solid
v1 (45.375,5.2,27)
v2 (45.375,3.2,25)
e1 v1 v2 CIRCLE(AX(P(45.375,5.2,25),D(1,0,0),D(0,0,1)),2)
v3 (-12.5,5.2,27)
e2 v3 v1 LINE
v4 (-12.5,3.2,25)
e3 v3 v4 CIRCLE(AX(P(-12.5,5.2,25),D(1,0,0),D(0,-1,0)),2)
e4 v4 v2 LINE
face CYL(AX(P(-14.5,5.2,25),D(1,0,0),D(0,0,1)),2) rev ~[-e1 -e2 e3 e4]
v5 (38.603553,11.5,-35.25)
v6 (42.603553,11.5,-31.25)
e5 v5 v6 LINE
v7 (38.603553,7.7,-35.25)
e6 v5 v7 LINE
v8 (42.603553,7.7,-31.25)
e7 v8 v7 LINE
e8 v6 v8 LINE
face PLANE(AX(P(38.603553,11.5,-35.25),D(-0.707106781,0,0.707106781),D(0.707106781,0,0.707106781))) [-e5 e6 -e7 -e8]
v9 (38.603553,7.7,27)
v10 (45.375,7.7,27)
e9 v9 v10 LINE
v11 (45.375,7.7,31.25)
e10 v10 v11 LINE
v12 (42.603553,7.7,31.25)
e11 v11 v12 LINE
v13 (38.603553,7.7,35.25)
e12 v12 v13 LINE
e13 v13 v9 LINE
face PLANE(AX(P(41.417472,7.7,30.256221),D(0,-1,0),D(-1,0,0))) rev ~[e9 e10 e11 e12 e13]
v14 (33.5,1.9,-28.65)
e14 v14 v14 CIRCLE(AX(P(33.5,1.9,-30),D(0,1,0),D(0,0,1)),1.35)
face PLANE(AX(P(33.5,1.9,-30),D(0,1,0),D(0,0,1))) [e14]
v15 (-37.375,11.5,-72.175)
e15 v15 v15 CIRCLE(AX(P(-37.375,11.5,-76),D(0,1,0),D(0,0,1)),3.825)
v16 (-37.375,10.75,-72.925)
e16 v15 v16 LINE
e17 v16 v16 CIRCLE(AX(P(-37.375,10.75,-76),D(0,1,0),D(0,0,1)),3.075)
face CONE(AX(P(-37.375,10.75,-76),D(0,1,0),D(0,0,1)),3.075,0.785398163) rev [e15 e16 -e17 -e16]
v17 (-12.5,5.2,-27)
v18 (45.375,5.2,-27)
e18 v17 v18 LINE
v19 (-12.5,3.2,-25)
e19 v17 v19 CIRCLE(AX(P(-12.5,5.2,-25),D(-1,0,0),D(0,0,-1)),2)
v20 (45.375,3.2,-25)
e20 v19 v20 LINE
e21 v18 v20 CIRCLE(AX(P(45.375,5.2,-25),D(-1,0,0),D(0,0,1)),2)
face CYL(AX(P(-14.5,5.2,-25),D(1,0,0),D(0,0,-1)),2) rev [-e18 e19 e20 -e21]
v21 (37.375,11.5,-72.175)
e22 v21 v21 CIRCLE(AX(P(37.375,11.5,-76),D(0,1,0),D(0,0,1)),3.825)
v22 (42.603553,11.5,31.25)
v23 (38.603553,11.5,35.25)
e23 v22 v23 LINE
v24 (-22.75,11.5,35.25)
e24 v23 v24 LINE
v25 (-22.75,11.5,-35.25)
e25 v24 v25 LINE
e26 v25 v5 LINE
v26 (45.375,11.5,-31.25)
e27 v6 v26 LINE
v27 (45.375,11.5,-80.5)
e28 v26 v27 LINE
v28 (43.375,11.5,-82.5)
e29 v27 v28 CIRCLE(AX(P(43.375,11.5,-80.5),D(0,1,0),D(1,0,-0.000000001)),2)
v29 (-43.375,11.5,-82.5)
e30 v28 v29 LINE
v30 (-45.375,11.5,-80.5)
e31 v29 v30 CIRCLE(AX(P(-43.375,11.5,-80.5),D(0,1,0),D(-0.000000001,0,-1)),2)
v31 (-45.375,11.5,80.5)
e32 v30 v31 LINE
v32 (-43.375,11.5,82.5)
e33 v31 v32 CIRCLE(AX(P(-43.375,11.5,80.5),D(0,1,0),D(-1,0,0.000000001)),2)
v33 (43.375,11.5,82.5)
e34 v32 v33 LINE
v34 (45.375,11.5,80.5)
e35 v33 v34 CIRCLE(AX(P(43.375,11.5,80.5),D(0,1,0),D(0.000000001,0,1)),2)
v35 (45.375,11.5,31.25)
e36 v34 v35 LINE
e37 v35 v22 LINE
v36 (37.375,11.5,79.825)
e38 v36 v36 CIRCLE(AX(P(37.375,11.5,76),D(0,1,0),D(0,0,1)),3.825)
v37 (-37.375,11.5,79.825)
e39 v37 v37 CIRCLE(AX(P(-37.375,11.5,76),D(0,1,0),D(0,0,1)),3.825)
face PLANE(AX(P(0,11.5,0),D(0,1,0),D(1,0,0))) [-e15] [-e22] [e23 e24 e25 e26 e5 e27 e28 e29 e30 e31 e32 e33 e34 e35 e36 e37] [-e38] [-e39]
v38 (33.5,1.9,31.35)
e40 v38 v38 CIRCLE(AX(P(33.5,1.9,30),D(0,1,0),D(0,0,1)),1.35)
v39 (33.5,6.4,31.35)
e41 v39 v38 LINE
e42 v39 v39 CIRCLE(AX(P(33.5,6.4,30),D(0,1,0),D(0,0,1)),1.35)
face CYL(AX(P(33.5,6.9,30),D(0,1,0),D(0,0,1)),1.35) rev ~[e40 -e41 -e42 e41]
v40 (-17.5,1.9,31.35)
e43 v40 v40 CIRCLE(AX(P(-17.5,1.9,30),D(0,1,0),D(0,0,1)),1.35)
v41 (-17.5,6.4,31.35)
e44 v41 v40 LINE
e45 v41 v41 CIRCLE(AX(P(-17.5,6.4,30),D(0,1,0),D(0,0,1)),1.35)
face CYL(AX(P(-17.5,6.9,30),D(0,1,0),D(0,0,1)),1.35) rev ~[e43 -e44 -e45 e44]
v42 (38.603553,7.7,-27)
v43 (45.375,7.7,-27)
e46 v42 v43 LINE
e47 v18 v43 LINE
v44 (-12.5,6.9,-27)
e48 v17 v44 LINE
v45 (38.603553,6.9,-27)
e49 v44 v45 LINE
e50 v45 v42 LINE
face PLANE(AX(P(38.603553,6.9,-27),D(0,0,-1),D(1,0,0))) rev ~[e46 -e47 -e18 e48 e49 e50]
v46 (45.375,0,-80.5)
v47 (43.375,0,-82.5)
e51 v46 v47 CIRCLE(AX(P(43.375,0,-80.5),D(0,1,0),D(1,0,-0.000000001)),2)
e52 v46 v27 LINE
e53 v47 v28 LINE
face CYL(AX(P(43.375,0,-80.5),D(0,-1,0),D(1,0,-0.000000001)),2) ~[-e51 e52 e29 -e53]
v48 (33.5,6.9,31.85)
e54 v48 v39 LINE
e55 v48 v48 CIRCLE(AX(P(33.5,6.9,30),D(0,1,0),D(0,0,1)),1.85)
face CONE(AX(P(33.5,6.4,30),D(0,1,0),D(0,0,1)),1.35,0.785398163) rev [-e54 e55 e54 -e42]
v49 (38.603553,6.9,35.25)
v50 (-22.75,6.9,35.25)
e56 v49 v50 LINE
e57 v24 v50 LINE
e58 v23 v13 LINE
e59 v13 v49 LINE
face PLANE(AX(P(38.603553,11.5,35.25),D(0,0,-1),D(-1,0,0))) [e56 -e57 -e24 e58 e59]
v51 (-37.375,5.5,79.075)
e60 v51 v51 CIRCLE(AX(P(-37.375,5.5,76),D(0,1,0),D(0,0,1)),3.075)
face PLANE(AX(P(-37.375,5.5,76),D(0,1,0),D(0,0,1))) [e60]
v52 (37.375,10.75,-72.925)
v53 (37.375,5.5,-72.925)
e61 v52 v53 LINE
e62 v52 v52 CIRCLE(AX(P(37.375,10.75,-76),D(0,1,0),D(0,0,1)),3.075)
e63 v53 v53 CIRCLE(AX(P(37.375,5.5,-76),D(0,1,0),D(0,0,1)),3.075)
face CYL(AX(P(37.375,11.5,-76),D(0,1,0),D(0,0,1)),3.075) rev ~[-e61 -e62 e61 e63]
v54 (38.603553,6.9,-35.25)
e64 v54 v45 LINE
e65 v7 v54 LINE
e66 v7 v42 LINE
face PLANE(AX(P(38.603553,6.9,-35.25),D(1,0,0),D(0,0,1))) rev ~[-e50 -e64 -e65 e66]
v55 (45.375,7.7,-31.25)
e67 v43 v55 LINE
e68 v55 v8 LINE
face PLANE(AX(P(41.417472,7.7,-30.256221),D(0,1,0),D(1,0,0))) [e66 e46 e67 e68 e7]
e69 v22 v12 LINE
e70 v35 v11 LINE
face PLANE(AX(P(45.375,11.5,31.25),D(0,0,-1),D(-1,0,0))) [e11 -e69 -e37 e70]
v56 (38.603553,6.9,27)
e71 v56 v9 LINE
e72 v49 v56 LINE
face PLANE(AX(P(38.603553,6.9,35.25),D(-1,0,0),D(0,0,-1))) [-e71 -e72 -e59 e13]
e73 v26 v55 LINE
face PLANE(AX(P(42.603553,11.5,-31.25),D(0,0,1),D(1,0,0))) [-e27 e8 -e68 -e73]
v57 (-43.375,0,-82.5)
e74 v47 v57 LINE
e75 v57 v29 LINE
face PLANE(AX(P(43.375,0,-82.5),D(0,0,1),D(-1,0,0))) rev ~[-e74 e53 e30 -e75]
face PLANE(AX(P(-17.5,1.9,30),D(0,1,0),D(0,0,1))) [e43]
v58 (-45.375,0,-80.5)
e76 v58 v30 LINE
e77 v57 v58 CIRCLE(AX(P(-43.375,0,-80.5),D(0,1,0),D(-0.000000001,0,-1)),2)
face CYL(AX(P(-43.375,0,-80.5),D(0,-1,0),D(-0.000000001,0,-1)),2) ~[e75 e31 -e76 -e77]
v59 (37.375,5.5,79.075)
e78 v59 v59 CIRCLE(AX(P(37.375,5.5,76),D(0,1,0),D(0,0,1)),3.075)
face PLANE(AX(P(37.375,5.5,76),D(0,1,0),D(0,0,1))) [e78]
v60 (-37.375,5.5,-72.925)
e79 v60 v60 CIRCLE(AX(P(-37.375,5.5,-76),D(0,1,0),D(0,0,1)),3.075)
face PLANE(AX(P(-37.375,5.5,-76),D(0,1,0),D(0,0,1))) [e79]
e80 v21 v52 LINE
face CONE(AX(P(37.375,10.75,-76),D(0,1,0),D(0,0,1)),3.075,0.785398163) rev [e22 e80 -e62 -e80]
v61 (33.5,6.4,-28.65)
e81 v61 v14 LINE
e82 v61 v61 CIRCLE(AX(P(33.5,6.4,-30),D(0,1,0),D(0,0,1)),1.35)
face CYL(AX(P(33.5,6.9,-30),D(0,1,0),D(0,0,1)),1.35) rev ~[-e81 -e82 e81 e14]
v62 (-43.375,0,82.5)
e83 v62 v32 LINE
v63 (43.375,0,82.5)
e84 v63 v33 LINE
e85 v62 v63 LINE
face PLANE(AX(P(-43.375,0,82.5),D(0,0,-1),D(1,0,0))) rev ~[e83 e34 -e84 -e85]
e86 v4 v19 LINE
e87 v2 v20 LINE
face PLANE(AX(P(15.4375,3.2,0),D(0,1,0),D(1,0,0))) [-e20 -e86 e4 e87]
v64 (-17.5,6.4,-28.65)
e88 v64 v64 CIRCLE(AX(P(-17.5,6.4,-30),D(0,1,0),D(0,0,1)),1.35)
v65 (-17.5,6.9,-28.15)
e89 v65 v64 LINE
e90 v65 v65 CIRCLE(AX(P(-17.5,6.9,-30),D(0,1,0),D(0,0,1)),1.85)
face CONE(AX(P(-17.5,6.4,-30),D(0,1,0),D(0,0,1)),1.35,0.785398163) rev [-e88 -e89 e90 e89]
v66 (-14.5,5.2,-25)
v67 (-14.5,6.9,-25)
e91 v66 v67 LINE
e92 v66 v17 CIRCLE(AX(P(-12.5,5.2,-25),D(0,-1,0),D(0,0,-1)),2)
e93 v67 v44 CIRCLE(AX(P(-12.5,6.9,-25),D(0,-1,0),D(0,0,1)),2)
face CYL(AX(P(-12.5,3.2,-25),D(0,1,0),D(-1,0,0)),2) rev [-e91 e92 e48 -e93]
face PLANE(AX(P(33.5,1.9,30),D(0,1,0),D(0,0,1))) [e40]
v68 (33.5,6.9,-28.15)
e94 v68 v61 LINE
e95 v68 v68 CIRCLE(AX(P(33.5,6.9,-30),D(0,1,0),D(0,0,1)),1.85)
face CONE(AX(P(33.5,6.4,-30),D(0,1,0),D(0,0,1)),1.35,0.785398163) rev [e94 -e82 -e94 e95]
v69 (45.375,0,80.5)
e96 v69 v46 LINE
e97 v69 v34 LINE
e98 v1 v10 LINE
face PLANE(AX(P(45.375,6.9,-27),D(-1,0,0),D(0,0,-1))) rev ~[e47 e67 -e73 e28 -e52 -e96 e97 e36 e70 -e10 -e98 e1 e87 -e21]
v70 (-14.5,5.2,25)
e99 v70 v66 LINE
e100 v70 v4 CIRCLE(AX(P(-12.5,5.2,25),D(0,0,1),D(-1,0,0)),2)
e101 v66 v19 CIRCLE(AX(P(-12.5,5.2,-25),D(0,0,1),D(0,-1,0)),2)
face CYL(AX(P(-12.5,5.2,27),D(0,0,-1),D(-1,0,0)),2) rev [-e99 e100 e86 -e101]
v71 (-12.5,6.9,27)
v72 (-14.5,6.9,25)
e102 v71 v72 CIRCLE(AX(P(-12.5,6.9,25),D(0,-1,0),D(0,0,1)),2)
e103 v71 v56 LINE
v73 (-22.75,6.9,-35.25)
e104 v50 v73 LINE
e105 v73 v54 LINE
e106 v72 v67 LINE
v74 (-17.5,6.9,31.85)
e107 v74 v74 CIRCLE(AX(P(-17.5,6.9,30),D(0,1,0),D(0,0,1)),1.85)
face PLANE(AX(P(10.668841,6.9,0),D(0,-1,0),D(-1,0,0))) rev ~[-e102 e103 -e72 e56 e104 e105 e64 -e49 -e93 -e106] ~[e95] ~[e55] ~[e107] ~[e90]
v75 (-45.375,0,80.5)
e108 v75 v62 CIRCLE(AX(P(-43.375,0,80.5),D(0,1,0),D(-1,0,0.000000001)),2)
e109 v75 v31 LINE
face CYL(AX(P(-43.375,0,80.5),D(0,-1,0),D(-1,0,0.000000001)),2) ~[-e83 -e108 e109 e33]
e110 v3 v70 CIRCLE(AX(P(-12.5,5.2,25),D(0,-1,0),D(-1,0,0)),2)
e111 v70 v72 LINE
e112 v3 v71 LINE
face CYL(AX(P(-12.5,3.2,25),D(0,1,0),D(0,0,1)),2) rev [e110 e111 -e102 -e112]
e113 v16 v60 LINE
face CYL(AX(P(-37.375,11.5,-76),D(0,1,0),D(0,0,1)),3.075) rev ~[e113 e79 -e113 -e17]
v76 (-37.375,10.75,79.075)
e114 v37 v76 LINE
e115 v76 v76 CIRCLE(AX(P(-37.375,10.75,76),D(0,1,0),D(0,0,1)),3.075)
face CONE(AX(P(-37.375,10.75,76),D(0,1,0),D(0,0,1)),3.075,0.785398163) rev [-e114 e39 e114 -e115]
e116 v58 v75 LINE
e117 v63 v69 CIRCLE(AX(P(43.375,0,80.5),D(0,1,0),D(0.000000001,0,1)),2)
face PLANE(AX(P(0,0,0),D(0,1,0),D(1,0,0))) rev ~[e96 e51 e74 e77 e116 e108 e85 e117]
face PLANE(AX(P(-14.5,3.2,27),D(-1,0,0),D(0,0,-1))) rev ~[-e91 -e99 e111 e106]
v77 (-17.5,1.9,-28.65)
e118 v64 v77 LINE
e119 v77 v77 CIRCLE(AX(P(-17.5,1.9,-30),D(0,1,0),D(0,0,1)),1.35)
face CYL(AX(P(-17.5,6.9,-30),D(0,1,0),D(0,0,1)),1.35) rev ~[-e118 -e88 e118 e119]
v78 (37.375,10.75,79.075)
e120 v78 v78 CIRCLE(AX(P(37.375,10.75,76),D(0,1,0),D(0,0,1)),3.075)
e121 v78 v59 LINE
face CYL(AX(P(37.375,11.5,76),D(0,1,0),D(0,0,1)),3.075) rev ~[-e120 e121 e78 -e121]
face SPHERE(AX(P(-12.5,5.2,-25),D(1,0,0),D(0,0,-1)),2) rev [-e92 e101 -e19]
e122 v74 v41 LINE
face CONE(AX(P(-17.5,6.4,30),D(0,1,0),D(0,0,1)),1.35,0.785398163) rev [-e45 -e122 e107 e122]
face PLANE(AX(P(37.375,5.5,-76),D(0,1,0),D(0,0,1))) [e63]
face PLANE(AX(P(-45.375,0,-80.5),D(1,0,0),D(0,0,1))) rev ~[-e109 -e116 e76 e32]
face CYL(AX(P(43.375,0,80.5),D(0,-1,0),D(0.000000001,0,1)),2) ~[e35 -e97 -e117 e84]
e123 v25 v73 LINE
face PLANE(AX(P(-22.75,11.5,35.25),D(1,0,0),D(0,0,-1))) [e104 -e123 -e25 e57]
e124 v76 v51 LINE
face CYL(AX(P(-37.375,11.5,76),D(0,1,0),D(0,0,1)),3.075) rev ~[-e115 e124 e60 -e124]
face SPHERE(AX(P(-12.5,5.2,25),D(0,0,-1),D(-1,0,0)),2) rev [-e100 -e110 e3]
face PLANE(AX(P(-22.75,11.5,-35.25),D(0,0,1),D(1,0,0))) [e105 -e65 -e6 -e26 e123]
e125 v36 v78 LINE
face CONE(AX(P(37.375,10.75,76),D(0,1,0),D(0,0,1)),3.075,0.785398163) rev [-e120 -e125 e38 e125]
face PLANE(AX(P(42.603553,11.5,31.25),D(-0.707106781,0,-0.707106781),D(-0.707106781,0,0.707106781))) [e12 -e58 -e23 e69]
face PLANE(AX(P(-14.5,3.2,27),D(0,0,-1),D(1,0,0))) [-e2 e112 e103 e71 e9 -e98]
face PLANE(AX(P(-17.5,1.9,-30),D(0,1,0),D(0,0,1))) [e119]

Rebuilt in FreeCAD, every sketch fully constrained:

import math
import FreeCAD as App
import Part
import Sketcher
from FreeCAD import Vector


def edges_at(feature, points):
    """Names of the edges that pass closest to the given points."""
    edges = feature.Shape.Edges
    near = lambda p: min(range(len(edges)), key=lambda i: edges[i].distToShape(Part.Vertex(*p))[0])
    return sorted({f"Edge{near(p) + 1}" for p in points})


def add_polygon(sketch, points):
    """Adds a closed chain of lines whose ends are joined by coincident constraints."""
    first, n = sketch.GeometryCount, len(points)
    for a, b in zip(points, points[1:] + points[:1]):
        sketch.addGeometry(Part.LineSegment(App.Vector(*a, 0), App.Vector(*b, 0)), False)
    for i in range(n):
        sketch.addConstraint(Sketcher.Constraint("Coincident", first + i, 2, first + (i + 1) % n, 1))

doc = App.newDocument("Part")
params = doc.addObject("Spreadsheet::Sheet", "Params")
for row, (alias, value) in enumerate([
    ("sketch1_radius", "2 mm"),
    ("sketch1_height", "161 mm"),
    ("sketch1_width", "86.75 mm"),
    ("pad1_length", "11.5 mm"),
    ("sketch2_diameter", "6.15 mm"),
    ("pocket1_length", "6 mm"),
    ("sketch3_height", "62.5 mm"),
    ("sketch3_height2", "70.5 mm"),
    ("pocket2_length", "4.6 mm"),
    ("sketch4_height", "54 mm"),
    ("pocket3_length", "95.407365 mm"),
    ("pocket3_length2", "3.7 mm"),
    ("sketch5_diameter", "2.7 mm"),
    ("pocket4_length", "5 mm"),
    ("chamfer_size", "0.5 mm"),
    ("fillet_radius", "2 mm"),
    ("sketch6_height", "8.25 mm"),
    ("pad2_length", "0.8 mm"),
    ("chamfer2_size", "0.75 mm"),
], start=1):
    params.set(f"A{row}", alias)
    params.set(f"B{row}", "=" + value)
    params.setAlias(f"B{row}", alias)

body = doc.addObject("PartDesign::Body", "Body")

# Sketch on XZ plane
sketch1 = body.newObject("Sketcher::SketchObject", "Sketch")
sketch1.AttachmentSupport = (doc.getObject("XZ_Plane"), [""])
sketch1.MapMode = "FlatFace"
sketch1.addGeometry([
    Part.ArcOfCircle(Part.Circle(Vector(-43.4, 80.5, 0), Vector(0, 0, 1), 2), math.radians(90), math.radians(180)),  # 0
    Part.LineSegment(Vector(-43.4, 82.5, 0), Vector(43.4, 82.5, 0)),  # 1
    Part.ArcOfCircle(Part.Circle(Vector(43.4, 80.5, 0), Vector(0, 0, 1), 2), math.radians(0), math.radians(90)),  # 2
    Part.LineSegment(Vector(45.4, 80.5, 0), Vector(45.4, -80.5, 0)),  # 3
    Part.ArcOfCircle(Part.Circle(Vector(43.4, -80.5, 0), Vector(0, 0, 1), 2), math.radians(-90), math.radians(0)),  # 4
    Part.LineSegment(Vector(43.4, -82.5, 0), Vector(-43.4, -82.5, 0)),  # 5
    Part.ArcOfCircle(Part.Circle(Vector(-43.4, -80.5, 0), Vector(0, 0, 1), 2), math.radians(-180), math.radians(-90)),  # 6
    Part.LineSegment(Vector(-45.4, -80.5, 0), Vector(-45.4, 80.5, 0)),  # 7
], False)
sketch1.addConstraint([
    Sketcher.Constraint("Tangent", 0, 1, 1, 1),
    Sketcher.Constraint("Tangent", 1, 2, 2, 2),
    Sketcher.Constraint("Tangent", 2, 1, 3, 1),
    Sketcher.Constraint("Tangent", 3, 2, 4, 2),
    Sketcher.Constraint("Tangent", 4, 1, 5, 1),
    Sketcher.Constraint("Tangent", 5, 2, 6, 2),
    Sketcher.Constraint("Tangent", 6, 1, 7, 1),
    Sketcher.Constraint("Tangent", 7, 2, 0, 2),
    Sketcher.Constraint("Horizontal", 1),
    Sketcher.Constraint("Vertical", 3),
    Sketcher.Constraint("Horizontal", 5),
    Sketcher.Constraint("Vertical", 7),
    Sketcher.Constraint("Equal", 0, 2),
    Sketcher.Constraint("Equal", 2, 4),
    Sketcher.Constraint("Equal", 4, 6),
    Sketcher.Constraint("Symmetric", 0, 3, 4, 3, -1, 1),
    Sketcher.Constraint("Radius", 0, 2.0),
    Sketcher.Constraint("DistanceY", 3, 2, 3, 1, 161.0),
    Sketcher.Constraint("DistanceX", 1, 1, 1, 2, 86.75),
])
sketch1.setExpression("Constraints[16]", "Params.sketch1_radius")
sketch1.setExpression("Constraints[17]", "Params.sketch1_height")
sketch1.setExpression("Constraints[18]", "Params.sketch1_width")
pad1 = body.newObject("PartDesign::Pad", "Pad")
pad1.Profile = sketch1
pad1.setExpression("Length", "Params.pad1_length")
pad1.Reversed = True

# Sketch on XZ plane
sketch2 = body.newObject("Sketcher::SketchObject", "Sketch001")
sketch2.AttachmentSupport = (doc.getObject("XZ_Plane"), [""])
sketch2.MapMode = "FlatFace"
sketch2.AttachmentOffset = App.Placement(Vector(0, 0, -11.5), App.Rotation())
sketch2.addGeometry([
    Part.Circle(Vector(-37.4, 76, 0), Vector(0, 0, 1), 3.1),
    Part.Circle(Vector(37.4, 76, 0), Vector(0, 0, 1), 3.1),
    Part.Circle(Vector(37.4, -76, 0), Vector(0, 0, 1), 3.1),
    Part.Circle(Vector(-37.4, -76, 0), Vector(0, 0, 1), 3.1),
], False)
sketch2.addConstraint([
    Sketcher.Constraint("Equal", 0, 1),
    Sketcher.Constraint("Equal", 1, 2),
    Sketcher.Constraint("Equal", 2, 3),
    Sketcher.Constraint("Symmetric", 0, 3, 2, 3, -1, 1),
    Sketcher.Constraint("Symmetric", 1, 3, 3, 3, -1, 1),
    Sketcher.Constraint("Symmetric", 0, 3, 1, 3, -2),
    Sketcher.Constraint("Diameter", 0, 6.15),
    Sketcher.Constraint("DistanceY", -1, 1, 0, 3, 76.0),
    Sketcher.Constraint("DistanceX", 0, 3, 1, 3, 74.75),
])
sketch2.setExpression("Constraints[6]", "Params.sketch2_diameter")
pocket1 = body.newObject("PartDesign::Pocket", "Pocket")
pocket1.Profile = sketch2
pocket1.setExpression("Length", "Params.pocket1_length")
pocket1.Reversed = True

# Sketch on XZ plane
sketch3 = body.newObject("Sketcher::SketchObject", "Sketch002")
sketch3.AttachmentSupport = (doc.getObject("XZ_Plane"), [""])
sketch3.MapMode = "FlatFace"
sketch3.AttachmentOffset = App.Placement(Vector(0, 0, -11.5), App.Rotation())
add_polygon(sketch3, [(45.4, 31.2), (45.4, -31.2), (42.6, -31.2), (38.6, -35.2), (-22.8, -35.2), (-22.8, 35.2), (38.6, 35.2), (42.6, 31.2)])  # lines 0-7
sketch3.addConstraint([
    Sketcher.Constraint("Vertical", 0),
    Sketcher.Constraint("Horizontal", 1),
    Sketcher.Constraint("Horizontal", 3),
    Sketcher.Constraint("Vertical", 4),
    Sketcher.Constraint("Horizontal", 5),
    Sketcher.Constraint("Horizontal", 7),
    Sketcher.Constraint("Symmetric", 2, 2, 5, 2, -1),
    Sketcher.Constraint("Symmetric", 1, 2, 6, 2, -1),
    Sketcher.Constraint("Perpendicular", 2, 6),
    Sketcher.Constraint("DistanceY", 0, 2, 0, 1, 62.5),
    Sketcher.Constraint("DistanceY", 4, 1, 4, 2, 70.5),
    Sketcher.Constraint("DistanceX", 3, 2, -1, 1, 22.75),
    Sketcher.Constraint("DistanceX", -1, 1, 0, 2, 45.375),
    Sketcher.Constraint("DistanceX", 1, 2, 1, 1, 2.771447),
])
sketch3.setExpression("Constraints[17]", "Params.sketch3_height")
sketch3.setExpression("Constraints[18]", "Params.sketch3_height2")
pocket2 = body.newObject("PartDesign::Pocket", "Pocket001")
pocket2.Profile = sketch3
pocket2.setExpression("Length", "Params.pocket2_length")
pocket2.Reversed = True

# Sketch on XZ plane
sketch4 = body.newObject("Sketcher::SketchObject", "Sketch003")
sketch4.AttachmentSupport = (doc.getObject("XZ_Plane"), [""])
sketch4.MapMode = "FlatFace"
sketch4.AttachmentOffset = App.Placement(Vector(0, 0, -6.9), App.Rotation())
add_polygon(sketch4, [(-14, -27), (-14, 27), (45, 27), (45, -27)])  # lines 0-3
sketch4.addConstraint([
    Sketcher.Constraint("Vertical", 0),
    Sketcher.Constraint("Horizontal", 1),
    Sketcher.Constraint("Vertical", 2),
    Sketcher.Constraint("Horizontal", 3),
    Sketcher.Constraint("DistanceY", 0, 1, 0, 2, 54.0),
    Sketcher.Constraint("DistanceY", -1, 1, 0, 2, 27.0),
    Sketcher.Constraint("DistanceX", 0, 2, -1, 1, 14.5),
    Sketcher.Constraint("DistanceX", 1, 1, 1, 2, 59.875),
])
sketch4.setExpression("Constraints[8]", "Params.sketch4_height")
pocket3 = body.newObject("PartDesign::Pocket", "Pocket002")
pocket3.Profile = sketch4
pocket3.Type = "TwoLengths"
pocket3.setExpression("Length", "Params.pocket3_length")
pocket3.setExpression("Length2", "Params.pocket3_length2")

# Sketch on XZ plane
sketch5 = body.newObject("Sketcher::SketchObject", "Sketch004")
sketch5.AttachmentSupport = (doc.getObject("XZ_Plane"), [""])
sketch5.MapMode = "FlatFace"
sketch5.AttachmentOffset = App.Placement(Vector(0, 0, -6.9), App.Rotation())
sketch5.addGeometry([
    Part.Circle(Vector(33.5, -30, 0), Vector(0, 0, 1), 1.4),
    Part.Circle(Vector(-17.5, -30, 0), Vector(0, 0, 1), 1.4),
    Part.Circle(Vector(33.5, 30, 0), Vector(0, 0, 1), 1.4),
    Part.Circle(Vector(-17.5, 30, 0), Vector(0, 0, 1), 1.4),
], False)
sketch5.addConstraint([
    Sketcher.Constraint("Equal", 0, 1),
    Sketcher.Constraint("Equal", 1, 2),
    Sketcher.Constraint("Equal", 2, 3),
    Sketcher.Constraint("Symmetric", 0, 3, 2, 3, -1),
    Sketcher.Constraint("Symmetric", 1, 3, 3, 3, -1),
    Sketcher.Constraint("Horizontal", 0, 3, 1, 3),
    Sketcher.Constraint("Diameter", 0, 2.7),
    Sketcher.Constraint("DistanceY", 0, 3, -1, 1, 30.0),
    Sketcher.Constraint("DistanceX", 1, 3, 0, 3, 51.0),
    Sketcher.Constraint("DistanceX", -1, 1, 0, 3, 33.5),
])
sketch5.setExpression("Constraints[6]", "Params.sketch5_diameter")
pocket4 = body.newObject("PartDesign::Pocket", "Pocket003")
pocket4.Profile = sketch5
pocket4.setExpression("Length", "Params.pocket4_length")
pocket4.Reversed = True
doc.recompute()

chamfer = body.newObject("PartDesign::Chamfer", "Chamfer")
chamfer.Base = (pocket4, edges_at(pocket4, [
    (-17.5, 6.9, -31.35),
    (33.5, 6.9, 28.65),
    (-17.5, 6.9, 28.65),
    (33.5, 6.9, -31.35),
]))
chamfer.setExpression("Size", "Params.chamfer_size")
doc.recompute()

fillet = body.newObject("PartDesign::Fillet", "Fillet")
fillet.Base = (chamfer, edges_at(chamfer, [
    (15.438, 3.2, -27),
    (-14.5, 5.05, -27),
    (-14.5, 3.2, 0),
    (-14.5, 5.05, 27),
    (15.438, 3.2, 27),
]))
fillet.setExpression("Radius", "Params.fillet_radius")

# Sketch on XZ plane
sketch6 = body.newObject("Sketcher::SketchObject", "Sketch005")
sketch6.AttachmentSupport = (doc.getObject("XZ_Plane"), [""])
sketch6.MapMode = "FlatFace"
sketch6.AttachmentOffset = App.Placement(Vector(0, 0, -6.9), App.Rotation())
add_polygon(sketch6, [(38.6, -35.2), (38.6, -27), (45.4, -27), (45.4, -31.2), (42.6, -31.2)])  # lines 0-4
add_polygon(sketch6, [(38.6, 35.2), (42.6, 31.2), (45.4, 31.2), (45.4, 27), (38.6, 27)])  # lines 5-9
sketch6.addConstraint([
    Sketcher.Constraint("Vertical", 0),
    Sketcher.Constraint("Horizontal", 1),
    Sketcher.Constraint("Vertical", 2),
    Sketcher.Constraint("Horizontal", 3),
    Sketcher.Constraint("Horizontal", 6),
    Sketcher.Constraint("Vertical", 7),
    Sketcher.Constraint("Horizontal", 8),
    Sketcher.Constraint("Vertical", 9),
    Sketcher.Constraint("Symmetric", 3, 2, 5, 2, -1),
    Sketcher.Constraint("Symmetric", 1, 2, 7, 2, -1),
    Sketcher.Constraint("Symmetric", 4, 2, 9, 2, -1),
    Sketcher.Constraint("Perpendicular", 4, 5),
    Sketcher.Constraint("DistanceY", 0, 2, -1, 1, 27.0),
    Sketcher.Constraint("DistanceX", 0, 2, 3, 2, 4.0),
    Sketcher.Constraint("DistanceY", 0, 1, 0, 2, 8.25),
    Sketcher.Constraint("DistanceX", -1, 1, 1, 2, 45.375),
    Sketcher.Constraint("DistanceX", 1, 1, 1, 2, 6.771447),
])
sketch6.setExpression("Constraints[24]", "Params.sketch6_height")
pad2 = body.newObject("PartDesign::Pad", "Pad001")
pad2.Profile = sketch6
pad2.setExpression("Length", "Params.pad2_length")
pad2.Reversed = True
doc.recompute()

chamfer2 = body.newObject("PartDesign::Chamfer", "Chamfer001")
chamfer2.Base = (pad2, edges_at(pad2, [
    (-37.375, 11.5, -79.075),
    (37.375, 11.5, -79.075),
    (37.375, 11.5, 72.925),
    (-37.375, 11.5, 72.925),
]))
chamfer2.setExpression("Size", "Params.chamfer2_size")

doc.recompute()
